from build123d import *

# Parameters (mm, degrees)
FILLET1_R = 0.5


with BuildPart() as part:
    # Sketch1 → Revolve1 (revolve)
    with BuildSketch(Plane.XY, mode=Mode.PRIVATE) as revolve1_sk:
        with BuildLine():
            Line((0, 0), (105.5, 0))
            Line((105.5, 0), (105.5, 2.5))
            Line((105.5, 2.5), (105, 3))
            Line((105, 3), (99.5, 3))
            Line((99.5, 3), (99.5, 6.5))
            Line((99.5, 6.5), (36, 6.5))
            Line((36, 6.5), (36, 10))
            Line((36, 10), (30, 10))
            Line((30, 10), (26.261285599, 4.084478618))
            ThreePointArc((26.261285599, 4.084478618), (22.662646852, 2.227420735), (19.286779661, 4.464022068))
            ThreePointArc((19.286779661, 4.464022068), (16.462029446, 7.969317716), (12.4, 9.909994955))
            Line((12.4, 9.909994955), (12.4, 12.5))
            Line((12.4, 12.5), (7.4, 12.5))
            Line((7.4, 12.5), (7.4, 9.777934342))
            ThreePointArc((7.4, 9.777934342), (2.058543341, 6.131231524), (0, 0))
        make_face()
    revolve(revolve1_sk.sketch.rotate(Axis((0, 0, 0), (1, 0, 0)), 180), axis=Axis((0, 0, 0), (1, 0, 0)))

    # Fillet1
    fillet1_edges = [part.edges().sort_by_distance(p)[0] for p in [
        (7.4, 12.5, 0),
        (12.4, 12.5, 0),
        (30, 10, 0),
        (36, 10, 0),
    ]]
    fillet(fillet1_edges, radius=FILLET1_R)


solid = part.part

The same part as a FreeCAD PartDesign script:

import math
import FreeCAD as App
import Part
import Sketcher

V = App.Vector
Q = App.Units.Quantity


def edges_at(feature, points):
    """Names of the edges that pass closest to the given points."""
    edges = feature.Shape.Edges
    near = lambda p: min(range(len(edges)), key=lambda i: edges[i].distToShape(Part.Vertex(*p))[0])
    return sorted({f"Edge{near(p) + 1}" for p in points})

doc = App.newDocument("Part")
body = doc.addObject("PartDesign::Body", "Body")

# Sketch on XY plane
sketch1 = doc.addObject("Sketcher::SketchObject", "Sketch")
body.addObject(sketch1)
sketch1.AttachmentSupport = (doc.XY_Plane, [""])
sketch1.MapMode = "FlatFace"
sketch1.addGeometry([
    Part.LineSegment(V(0, 0, 0), V(105.5, 0, 0)),  # 0
    Part.LineSegment(V(105.5, 0, 0), V(105.5, 2.5, 0)),  # 1
    Part.LineSegment(V(105.5, 2.5, 0), V(105, 3, 0)),  # 2
    Part.LineSegment(V(105, 3, 0), V(99.5, 3, 0)),  # 3
    Part.LineSegment(V(99.5, 3, 0), V(99.5, 6.5, 0)),  # 4
    Part.LineSegment(V(99.5, 6.5, 0), V(36, 6.5, 0)),  # 5
    Part.LineSegment(V(36, 6.5, 0), V(36, 10, 0)),  # 6
    Part.LineSegment(V(36, 10, 0), V(30, 10, 0)),  # 7
    Part.LineSegment(V(30, 10, 0), V(26.3, 4.1, 0)),  # 8
    Part.ArcOfCircle(Part.Circle(V(22.9, 6.2, 0), V(0, 0, 1), 4), math.radians(-154), math.radians(-32)),  # 9
    Part.ArcOfCircle(Part.Circle(V(10.2, 0, 0), V(0, 0, 1), 10.2), math.radians(26), math.radians(77)),  # 10
    Part.LineSegment(V(12.4, 9.9, 0), V(12.4, 12.5, 0)),  # 11
    Part.LineSegment(V(12.4, 12.5, 0), V(7.4, 12.5, 0)),  # 12
    Part.LineSegment(V(7.4, 12.5, 0), V(7.4, 9.8, 0)),  # 13
    Part.ArcOfCircle(Part.Circle(V(10.2, 0, 0), V(0, 0, 1), 10.2), math.radians(106), math.radians(180)),  # 14
], False)
sketch1.addConstraint([
    Sketcher.Constraint("Coincident", 0, 2, 1, 1),
    Sketcher.Constraint("Coincident", 1, 2, 2, 1),
    Sketcher.Constraint("Coincident", 2, 2, 3, 1),
    Sketcher.Constraint("Coincident", 3, 2, 4, 1),
    Sketcher.Constraint("Coincident", 4, 2, 5, 1),
    Sketcher.Constraint("Coincident", 5, 2, 6, 1),
    Sketcher.Constraint("Coincident", 6, 2, 7, 1),
    Sketcher.Constraint("Coincident", 7, 2, 8, 1),
    Sketcher.Constraint("Tangent", 8, 2, 9, 2),
    Sketcher.Constraint("Tangent", 9, 1, 10, 1),
    Sketcher.Constraint("Coincident", 10, 2, 11, 1),
    Sketcher.Constraint("Coincident", 11, 2, 12, 1),
    Sketcher.Constraint("Coincident", 12, 2, 13, 1),
    Sketcher.Constraint("Coincident", 13, 2, 14, 1),
    Sketcher.Constraint("Coincident", 14, 2, 0, 1),
    Sketcher.Constraint("Horizontal", 0),
    Sketcher.Constraint("Vertical", 1),
    Sketcher.Constraint("Horizontal", 3),
    Sketcher.Constraint("Vertical", 4),
    Sketcher.Constraint("Horizontal", 5),
    Sketcher.Constraint("Vertical", 6),
    Sketcher.Constraint("Horizontal", 7),
    Sketcher.Constraint("Vertical", 11),
    Sketcher.Constraint("Horizontal", 12),
    Sketcher.Constraint("Vertical", 13),
    Sketcher.Constraint("Coincident", 14, 2, -1, 1),
    Sketcher.Constraint("Coincident", 14, 3, 10, 3),
    Sketcher.Constraint("Equal", 10, 14),
    Sketcher.Constraint("PointOnObject", 10, 3, -1),
    Sketcher.Constraint("Equal", 4, 6),
    Sketcher.Constraint("Radius", 9, Q("4 mm")),
    Sketcher.Constraint("DistanceX", 7, 2, 7, 1, Q("6 mm")),
    Sketcher.Constraint("DistanceX", 12, 2, 12, 1, Q("5 mm")),
    Sketcher.Constraint("Angle", 2, Q("135 deg")),
    Sketcher.Constraint("Radius", 10, Q("10.16 mm")),
    Sketcher.Constraint("DistanceX", 0, 1, 0, 2, Q("105.5 mm")),
    Sketcher.Constraint("DistanceX", 3, 2, 3, 1, Q("5.5 mm")),
    Sketcher.Constraint("DistanceX", 5, 2, 5, 1, Q("63.5 mm")),
    Sketcher.Constraint("DistanceY", 1, 1, 1, 2, Q("2.5 mm")),
    Sketcher.Constraint("DistanceY", 4, 1, 4, 2, Q("3.5 mm")),
    Sketcher.Constraint("DistanceX", -1, 1, 2, 2, Q("105 mm")),
    Sketcher.Constraint("DistanceX", -1, 1, 10, 2, Q("12.4 mm")),
    Sketcher.Constraint("DistanceY", -1, 1, 11, 2, Q("12.5 mm")),
    Sketcher.Constraint("DistanceX", -1, 1, 9, 3, Q("22.88 mm")),
])
revolution = doc.addObject("PartDesign::Revolution", "Revolution")
body.addObject(revolution)
revolution.Profile = sketch1
revolution.ReferenceAxis = (sketch1, ["H_Axis"])
revolution.Angle = 360
doc.recompute()

fillet = doc.addObject("PartDesign::Fillet", "Fillet")
body.addObject(fillet)
fillet.Base = (revolution, edges_at(revolution, [
    (7.4, 12.5, 0),
    (12.4, 12.5, 0),
    (30, 10, 0),
    (36, 10, 0),
]))
fillet.Radius = 0.5

doc.recompute()
